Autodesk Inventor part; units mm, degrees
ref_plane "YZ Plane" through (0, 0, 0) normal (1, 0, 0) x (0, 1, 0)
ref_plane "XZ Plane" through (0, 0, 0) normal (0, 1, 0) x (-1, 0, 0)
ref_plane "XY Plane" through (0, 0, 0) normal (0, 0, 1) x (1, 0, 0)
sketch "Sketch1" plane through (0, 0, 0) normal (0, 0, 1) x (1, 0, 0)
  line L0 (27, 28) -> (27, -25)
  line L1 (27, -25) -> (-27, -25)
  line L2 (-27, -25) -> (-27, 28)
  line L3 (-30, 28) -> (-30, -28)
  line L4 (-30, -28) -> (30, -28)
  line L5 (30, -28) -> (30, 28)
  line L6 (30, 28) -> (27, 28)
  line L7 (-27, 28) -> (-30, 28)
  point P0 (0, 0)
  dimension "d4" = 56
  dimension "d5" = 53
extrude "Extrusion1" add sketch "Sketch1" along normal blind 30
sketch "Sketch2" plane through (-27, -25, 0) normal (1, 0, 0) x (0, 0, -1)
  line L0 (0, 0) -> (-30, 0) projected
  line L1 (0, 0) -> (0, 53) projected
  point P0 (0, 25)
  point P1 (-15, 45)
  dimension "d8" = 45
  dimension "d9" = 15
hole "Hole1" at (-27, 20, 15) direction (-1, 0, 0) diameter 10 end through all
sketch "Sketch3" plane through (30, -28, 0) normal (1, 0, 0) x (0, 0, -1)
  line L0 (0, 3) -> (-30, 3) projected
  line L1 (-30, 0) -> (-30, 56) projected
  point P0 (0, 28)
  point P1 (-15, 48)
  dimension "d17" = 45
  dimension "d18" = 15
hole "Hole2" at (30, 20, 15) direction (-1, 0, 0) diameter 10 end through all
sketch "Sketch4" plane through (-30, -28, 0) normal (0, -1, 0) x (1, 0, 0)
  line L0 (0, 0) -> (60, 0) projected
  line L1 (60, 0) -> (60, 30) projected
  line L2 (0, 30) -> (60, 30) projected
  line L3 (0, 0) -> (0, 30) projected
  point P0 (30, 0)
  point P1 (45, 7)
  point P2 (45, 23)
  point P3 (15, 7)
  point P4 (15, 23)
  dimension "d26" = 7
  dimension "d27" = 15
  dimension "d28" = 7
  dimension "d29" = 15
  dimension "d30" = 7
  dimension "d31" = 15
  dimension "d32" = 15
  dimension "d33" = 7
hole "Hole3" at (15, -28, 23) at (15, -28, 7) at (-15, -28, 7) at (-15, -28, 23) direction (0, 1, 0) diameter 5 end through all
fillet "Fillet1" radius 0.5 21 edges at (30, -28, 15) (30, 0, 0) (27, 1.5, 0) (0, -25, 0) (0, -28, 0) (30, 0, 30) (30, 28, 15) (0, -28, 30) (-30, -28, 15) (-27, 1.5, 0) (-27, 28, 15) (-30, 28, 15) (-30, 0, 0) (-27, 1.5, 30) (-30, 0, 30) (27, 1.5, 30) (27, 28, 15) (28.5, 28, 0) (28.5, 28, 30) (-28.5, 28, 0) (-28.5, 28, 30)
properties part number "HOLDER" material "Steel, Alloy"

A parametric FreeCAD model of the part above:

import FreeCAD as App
import Part
import Sketcher

V = App.Vector


def edges_at(feature, points):
    """Names of the edges that pass closest to the given points."""
    edges = feature.Shape.Edges
    near = lambda p: min(range(len(edges)), key=lambda i: edges[i].distToShape(Part.Vertex(*p))[0])
    return sorted({f"Edge{near(p) + 1}" for p in points})


def add_polygon(sketch, points):
    """Adds a closed chain of lines whose ends are joined by coincident constraints."""
    first, n = sketch.GeometryCount, len(points)
    for a, b in zip(points, points[1:] + points[:1]):
        sketch.addGeometry(Part.LineSegment(App.Vector(*a, 0), App.Vector(*b, 0)), False)
    for i in range(n):
        sketch.addConstraint(Sketcher.Constraint("Coincident", first + i, 2, first + (i + 1) % n, 1))

doc = App.newDocument("Part")
body = doc.addObject("PartDesign::Body", "Body")

# Sketch on XY plane
sketch1 = body.newObject("Sketcher::SketchObject", "Sketch")
sketch1.AttachmentSupport = (doc.getObject("XY_Plane"), [""])
sketch1.MapMode = "FlatFace"
add_polygon(sketch1, [(30, 28), (27, 28), (27, -25), (-27, -25), (-27, 28), (-30, 28), (-30, -28), (30, -28)])  # lines 0-7
sketch1.addConstraint([
    Sketcher.Constraint("Horizontal", 0),
    Sketcher.Constraint("Vertical", 1),
    Sketcher.Constraint("Horizontal", 2),
    Sketcher.Constraint("Vertical", 3),
    Sketcher.Constraint("Horizontal", 4),
    Sketcher.Constraint("Vertical", 5),
    Sketcher.Constraint("Horizontal", 6),
    Sketcher.Constraint("Vertical", 7),
    Sketcher.Constraint("Symmetric", 4, 2, 6, 2, -1, 1),
    Sketcher.Constraint("Symmetric", 0, 2, 3, 2, -2),
    Sketcher.Constraint("DistanceY", 1, 2, 1, 1, 53.0),
    Sketcher.Constraint("DistanceY", 5, 2, 5, 1, 56.0),
    Sketcher.Constraint("DistanceX", 0, 2, 0, 1, 3.0),
    Sketcher.Constraint("DistanceX", 2, 2, 2, 1, 54.0),
])
pad1 = body.newObject("PartDesign::Pad", "Pad")
pad1.Profile = sketch1
pad1.Length = 30

# Sketch on YZ plane
sketch2 = body.newObject("Sketcher::SketchObject", "Sketch001")
sketch2.AttachmentSupport = (doc.getObject("YZ_Plane"), [""])
sketch2.MapMode = "FlatFace"
sketch2.AttachmentOffset = App.Placement(V(0, 0, -27), App.Rotation())
sketch2.addGeometry(Part.Circle(V(20, 15, 0), V(0, 0, 1), 5), False)
sketch2.addConstraint([
    Sketcher.Constraint("Diameter", 0, 10.0),
    Sketcher.Constraint("DistanceX", -1, 1, 0, 3, 20.0),
    Sketcher.Constraint("DistanceY", -1, 1, 0, 3, 15.0),
])
doc.recompute()
hole = body.newObject("PartDesign::Hole", "Hole")
hole.Profile = sketch2
hole.ThreadType = "None"
hole.Diameter = 10
hole.DepthType = "ThroughAll"

# Sketch on YZ plane
sketch3 = body.newObject("Sketcher::SketchObject", "Sketch002")
sketch3.AttachmentSupport = (doc.getObject("YZ_Plane"), [""])
sketch3.MapMode = "FlatFace"
sketch3.AttachmentOffset = App.Placement(V(0, 0, 30), App.Rotation())
sketch3.addGeometry(Part.Circle(V(20, 15, 0), V(0, 0, 1), 5), False)
sketch3.addConstraint([
    Sketcher.Constraint("Diameter", 0, 10.0),
    Sketcher.Constraint("DistanceX", -1, 1, 0, 3, 20.0),
    Sketcher.Constraint("DistanceY", -1, 1, 0, 3, 15.0),
])
doc.recompute()
hole2 = body.newObject("PartDesign::Hole", "Hole001")
hole2.Profile = sketch3
hole2.ThreadType = "None"
hole2.Diameter = 10
hole2.DepthType = "ThroughAll"

# Sketch on XZ plane
sketch4 = body.newObject("Sketcher::SketchObject", "Sketch003")
sketch4.AttachmentSupport = (doc.getObject("XZ_Plane"), [""])
sketch4.MapMode = "FlatFace"
sketch4.AttachmentOffset = App.Placement(V(0, 0, 28), App.Rotation())
sketch4.addGeometry([
    Part.Circle(V(15, 23, 0), V(0, 0, 1), 2.5),
    Part.Circle(V(15, 7, 0), V(0, 0, 1), 2.5),
    Part.Circle(V(-15, 7, 0), V(0, 0, 1), 2.5),
    Part.Circle(V(-15, 23, 0), V(0, 0, 1), 2.5),
], False)
sketch4.addConstraint([
    Sketcher.Constraint("Equal", 0, 1),
    Sketcher.Constraint("Equal", 1, 2),
    Sketcher.Constraint("Equal", 2, 3),
    Sketcher.Constraint("Symmetric", 1, 3, 2, 3, -2),
    Sketcher.Constraint("Symmetric", 0, 3, 3, 3, -2),
    Sketcher.Constraint("Vertical", 0, 3, 1, 3),
    Sketcher.Constraint("Diameter", 0, 5.0),
    Sketcher.Constraint("DistanceX", -1, 1, 0, 3, 15.0),
    Sketcher.Constraint("DistanceY", -1, 1, 0, 3, 23.0),
    Sketcher.Constraint("DistanceY", -1, 1, 1, 3, 7.0),
])
doc.recompute()
hole3 = body.newObject("PartDesign::Hole", "Hole002")
hole3.Profile = sketch4
hole3.ThreadType = "None"
hole3.Diameter = 5
hole3.DepthType = "ThroughAll"
doc.recompute()

fillet = body.newObject("PartDesign::Fillet", "Fillet")
fillet.Base = (hole3, edges_at(hole3, [
    (30, -28, 15),
    (30, 0, 0),
    (27, 1.5, 0),
    (0, -25, 0),
    (0, -28, 0),
    (30, 0, 30),
    (30, 28, 15),
    (0, -28, 30),
    (-30, -28, 15),
    (-27, 1.5, 0),
    (-27, 28, 15),
    (-30, 28, 15),
    (-30, 0, 0),
    (-27, 1.5, 30),
    (-30, 0, 30),
    (27, 1.5, 30),
    (27, 28, 15),
    (28.5, 28, 0),
    (28.5, 28, 30),
    (-28.5, 28, 0),
    (-28.5, 28, 30),
]))
fillet.Radius = 0.5

doc.recompute()
